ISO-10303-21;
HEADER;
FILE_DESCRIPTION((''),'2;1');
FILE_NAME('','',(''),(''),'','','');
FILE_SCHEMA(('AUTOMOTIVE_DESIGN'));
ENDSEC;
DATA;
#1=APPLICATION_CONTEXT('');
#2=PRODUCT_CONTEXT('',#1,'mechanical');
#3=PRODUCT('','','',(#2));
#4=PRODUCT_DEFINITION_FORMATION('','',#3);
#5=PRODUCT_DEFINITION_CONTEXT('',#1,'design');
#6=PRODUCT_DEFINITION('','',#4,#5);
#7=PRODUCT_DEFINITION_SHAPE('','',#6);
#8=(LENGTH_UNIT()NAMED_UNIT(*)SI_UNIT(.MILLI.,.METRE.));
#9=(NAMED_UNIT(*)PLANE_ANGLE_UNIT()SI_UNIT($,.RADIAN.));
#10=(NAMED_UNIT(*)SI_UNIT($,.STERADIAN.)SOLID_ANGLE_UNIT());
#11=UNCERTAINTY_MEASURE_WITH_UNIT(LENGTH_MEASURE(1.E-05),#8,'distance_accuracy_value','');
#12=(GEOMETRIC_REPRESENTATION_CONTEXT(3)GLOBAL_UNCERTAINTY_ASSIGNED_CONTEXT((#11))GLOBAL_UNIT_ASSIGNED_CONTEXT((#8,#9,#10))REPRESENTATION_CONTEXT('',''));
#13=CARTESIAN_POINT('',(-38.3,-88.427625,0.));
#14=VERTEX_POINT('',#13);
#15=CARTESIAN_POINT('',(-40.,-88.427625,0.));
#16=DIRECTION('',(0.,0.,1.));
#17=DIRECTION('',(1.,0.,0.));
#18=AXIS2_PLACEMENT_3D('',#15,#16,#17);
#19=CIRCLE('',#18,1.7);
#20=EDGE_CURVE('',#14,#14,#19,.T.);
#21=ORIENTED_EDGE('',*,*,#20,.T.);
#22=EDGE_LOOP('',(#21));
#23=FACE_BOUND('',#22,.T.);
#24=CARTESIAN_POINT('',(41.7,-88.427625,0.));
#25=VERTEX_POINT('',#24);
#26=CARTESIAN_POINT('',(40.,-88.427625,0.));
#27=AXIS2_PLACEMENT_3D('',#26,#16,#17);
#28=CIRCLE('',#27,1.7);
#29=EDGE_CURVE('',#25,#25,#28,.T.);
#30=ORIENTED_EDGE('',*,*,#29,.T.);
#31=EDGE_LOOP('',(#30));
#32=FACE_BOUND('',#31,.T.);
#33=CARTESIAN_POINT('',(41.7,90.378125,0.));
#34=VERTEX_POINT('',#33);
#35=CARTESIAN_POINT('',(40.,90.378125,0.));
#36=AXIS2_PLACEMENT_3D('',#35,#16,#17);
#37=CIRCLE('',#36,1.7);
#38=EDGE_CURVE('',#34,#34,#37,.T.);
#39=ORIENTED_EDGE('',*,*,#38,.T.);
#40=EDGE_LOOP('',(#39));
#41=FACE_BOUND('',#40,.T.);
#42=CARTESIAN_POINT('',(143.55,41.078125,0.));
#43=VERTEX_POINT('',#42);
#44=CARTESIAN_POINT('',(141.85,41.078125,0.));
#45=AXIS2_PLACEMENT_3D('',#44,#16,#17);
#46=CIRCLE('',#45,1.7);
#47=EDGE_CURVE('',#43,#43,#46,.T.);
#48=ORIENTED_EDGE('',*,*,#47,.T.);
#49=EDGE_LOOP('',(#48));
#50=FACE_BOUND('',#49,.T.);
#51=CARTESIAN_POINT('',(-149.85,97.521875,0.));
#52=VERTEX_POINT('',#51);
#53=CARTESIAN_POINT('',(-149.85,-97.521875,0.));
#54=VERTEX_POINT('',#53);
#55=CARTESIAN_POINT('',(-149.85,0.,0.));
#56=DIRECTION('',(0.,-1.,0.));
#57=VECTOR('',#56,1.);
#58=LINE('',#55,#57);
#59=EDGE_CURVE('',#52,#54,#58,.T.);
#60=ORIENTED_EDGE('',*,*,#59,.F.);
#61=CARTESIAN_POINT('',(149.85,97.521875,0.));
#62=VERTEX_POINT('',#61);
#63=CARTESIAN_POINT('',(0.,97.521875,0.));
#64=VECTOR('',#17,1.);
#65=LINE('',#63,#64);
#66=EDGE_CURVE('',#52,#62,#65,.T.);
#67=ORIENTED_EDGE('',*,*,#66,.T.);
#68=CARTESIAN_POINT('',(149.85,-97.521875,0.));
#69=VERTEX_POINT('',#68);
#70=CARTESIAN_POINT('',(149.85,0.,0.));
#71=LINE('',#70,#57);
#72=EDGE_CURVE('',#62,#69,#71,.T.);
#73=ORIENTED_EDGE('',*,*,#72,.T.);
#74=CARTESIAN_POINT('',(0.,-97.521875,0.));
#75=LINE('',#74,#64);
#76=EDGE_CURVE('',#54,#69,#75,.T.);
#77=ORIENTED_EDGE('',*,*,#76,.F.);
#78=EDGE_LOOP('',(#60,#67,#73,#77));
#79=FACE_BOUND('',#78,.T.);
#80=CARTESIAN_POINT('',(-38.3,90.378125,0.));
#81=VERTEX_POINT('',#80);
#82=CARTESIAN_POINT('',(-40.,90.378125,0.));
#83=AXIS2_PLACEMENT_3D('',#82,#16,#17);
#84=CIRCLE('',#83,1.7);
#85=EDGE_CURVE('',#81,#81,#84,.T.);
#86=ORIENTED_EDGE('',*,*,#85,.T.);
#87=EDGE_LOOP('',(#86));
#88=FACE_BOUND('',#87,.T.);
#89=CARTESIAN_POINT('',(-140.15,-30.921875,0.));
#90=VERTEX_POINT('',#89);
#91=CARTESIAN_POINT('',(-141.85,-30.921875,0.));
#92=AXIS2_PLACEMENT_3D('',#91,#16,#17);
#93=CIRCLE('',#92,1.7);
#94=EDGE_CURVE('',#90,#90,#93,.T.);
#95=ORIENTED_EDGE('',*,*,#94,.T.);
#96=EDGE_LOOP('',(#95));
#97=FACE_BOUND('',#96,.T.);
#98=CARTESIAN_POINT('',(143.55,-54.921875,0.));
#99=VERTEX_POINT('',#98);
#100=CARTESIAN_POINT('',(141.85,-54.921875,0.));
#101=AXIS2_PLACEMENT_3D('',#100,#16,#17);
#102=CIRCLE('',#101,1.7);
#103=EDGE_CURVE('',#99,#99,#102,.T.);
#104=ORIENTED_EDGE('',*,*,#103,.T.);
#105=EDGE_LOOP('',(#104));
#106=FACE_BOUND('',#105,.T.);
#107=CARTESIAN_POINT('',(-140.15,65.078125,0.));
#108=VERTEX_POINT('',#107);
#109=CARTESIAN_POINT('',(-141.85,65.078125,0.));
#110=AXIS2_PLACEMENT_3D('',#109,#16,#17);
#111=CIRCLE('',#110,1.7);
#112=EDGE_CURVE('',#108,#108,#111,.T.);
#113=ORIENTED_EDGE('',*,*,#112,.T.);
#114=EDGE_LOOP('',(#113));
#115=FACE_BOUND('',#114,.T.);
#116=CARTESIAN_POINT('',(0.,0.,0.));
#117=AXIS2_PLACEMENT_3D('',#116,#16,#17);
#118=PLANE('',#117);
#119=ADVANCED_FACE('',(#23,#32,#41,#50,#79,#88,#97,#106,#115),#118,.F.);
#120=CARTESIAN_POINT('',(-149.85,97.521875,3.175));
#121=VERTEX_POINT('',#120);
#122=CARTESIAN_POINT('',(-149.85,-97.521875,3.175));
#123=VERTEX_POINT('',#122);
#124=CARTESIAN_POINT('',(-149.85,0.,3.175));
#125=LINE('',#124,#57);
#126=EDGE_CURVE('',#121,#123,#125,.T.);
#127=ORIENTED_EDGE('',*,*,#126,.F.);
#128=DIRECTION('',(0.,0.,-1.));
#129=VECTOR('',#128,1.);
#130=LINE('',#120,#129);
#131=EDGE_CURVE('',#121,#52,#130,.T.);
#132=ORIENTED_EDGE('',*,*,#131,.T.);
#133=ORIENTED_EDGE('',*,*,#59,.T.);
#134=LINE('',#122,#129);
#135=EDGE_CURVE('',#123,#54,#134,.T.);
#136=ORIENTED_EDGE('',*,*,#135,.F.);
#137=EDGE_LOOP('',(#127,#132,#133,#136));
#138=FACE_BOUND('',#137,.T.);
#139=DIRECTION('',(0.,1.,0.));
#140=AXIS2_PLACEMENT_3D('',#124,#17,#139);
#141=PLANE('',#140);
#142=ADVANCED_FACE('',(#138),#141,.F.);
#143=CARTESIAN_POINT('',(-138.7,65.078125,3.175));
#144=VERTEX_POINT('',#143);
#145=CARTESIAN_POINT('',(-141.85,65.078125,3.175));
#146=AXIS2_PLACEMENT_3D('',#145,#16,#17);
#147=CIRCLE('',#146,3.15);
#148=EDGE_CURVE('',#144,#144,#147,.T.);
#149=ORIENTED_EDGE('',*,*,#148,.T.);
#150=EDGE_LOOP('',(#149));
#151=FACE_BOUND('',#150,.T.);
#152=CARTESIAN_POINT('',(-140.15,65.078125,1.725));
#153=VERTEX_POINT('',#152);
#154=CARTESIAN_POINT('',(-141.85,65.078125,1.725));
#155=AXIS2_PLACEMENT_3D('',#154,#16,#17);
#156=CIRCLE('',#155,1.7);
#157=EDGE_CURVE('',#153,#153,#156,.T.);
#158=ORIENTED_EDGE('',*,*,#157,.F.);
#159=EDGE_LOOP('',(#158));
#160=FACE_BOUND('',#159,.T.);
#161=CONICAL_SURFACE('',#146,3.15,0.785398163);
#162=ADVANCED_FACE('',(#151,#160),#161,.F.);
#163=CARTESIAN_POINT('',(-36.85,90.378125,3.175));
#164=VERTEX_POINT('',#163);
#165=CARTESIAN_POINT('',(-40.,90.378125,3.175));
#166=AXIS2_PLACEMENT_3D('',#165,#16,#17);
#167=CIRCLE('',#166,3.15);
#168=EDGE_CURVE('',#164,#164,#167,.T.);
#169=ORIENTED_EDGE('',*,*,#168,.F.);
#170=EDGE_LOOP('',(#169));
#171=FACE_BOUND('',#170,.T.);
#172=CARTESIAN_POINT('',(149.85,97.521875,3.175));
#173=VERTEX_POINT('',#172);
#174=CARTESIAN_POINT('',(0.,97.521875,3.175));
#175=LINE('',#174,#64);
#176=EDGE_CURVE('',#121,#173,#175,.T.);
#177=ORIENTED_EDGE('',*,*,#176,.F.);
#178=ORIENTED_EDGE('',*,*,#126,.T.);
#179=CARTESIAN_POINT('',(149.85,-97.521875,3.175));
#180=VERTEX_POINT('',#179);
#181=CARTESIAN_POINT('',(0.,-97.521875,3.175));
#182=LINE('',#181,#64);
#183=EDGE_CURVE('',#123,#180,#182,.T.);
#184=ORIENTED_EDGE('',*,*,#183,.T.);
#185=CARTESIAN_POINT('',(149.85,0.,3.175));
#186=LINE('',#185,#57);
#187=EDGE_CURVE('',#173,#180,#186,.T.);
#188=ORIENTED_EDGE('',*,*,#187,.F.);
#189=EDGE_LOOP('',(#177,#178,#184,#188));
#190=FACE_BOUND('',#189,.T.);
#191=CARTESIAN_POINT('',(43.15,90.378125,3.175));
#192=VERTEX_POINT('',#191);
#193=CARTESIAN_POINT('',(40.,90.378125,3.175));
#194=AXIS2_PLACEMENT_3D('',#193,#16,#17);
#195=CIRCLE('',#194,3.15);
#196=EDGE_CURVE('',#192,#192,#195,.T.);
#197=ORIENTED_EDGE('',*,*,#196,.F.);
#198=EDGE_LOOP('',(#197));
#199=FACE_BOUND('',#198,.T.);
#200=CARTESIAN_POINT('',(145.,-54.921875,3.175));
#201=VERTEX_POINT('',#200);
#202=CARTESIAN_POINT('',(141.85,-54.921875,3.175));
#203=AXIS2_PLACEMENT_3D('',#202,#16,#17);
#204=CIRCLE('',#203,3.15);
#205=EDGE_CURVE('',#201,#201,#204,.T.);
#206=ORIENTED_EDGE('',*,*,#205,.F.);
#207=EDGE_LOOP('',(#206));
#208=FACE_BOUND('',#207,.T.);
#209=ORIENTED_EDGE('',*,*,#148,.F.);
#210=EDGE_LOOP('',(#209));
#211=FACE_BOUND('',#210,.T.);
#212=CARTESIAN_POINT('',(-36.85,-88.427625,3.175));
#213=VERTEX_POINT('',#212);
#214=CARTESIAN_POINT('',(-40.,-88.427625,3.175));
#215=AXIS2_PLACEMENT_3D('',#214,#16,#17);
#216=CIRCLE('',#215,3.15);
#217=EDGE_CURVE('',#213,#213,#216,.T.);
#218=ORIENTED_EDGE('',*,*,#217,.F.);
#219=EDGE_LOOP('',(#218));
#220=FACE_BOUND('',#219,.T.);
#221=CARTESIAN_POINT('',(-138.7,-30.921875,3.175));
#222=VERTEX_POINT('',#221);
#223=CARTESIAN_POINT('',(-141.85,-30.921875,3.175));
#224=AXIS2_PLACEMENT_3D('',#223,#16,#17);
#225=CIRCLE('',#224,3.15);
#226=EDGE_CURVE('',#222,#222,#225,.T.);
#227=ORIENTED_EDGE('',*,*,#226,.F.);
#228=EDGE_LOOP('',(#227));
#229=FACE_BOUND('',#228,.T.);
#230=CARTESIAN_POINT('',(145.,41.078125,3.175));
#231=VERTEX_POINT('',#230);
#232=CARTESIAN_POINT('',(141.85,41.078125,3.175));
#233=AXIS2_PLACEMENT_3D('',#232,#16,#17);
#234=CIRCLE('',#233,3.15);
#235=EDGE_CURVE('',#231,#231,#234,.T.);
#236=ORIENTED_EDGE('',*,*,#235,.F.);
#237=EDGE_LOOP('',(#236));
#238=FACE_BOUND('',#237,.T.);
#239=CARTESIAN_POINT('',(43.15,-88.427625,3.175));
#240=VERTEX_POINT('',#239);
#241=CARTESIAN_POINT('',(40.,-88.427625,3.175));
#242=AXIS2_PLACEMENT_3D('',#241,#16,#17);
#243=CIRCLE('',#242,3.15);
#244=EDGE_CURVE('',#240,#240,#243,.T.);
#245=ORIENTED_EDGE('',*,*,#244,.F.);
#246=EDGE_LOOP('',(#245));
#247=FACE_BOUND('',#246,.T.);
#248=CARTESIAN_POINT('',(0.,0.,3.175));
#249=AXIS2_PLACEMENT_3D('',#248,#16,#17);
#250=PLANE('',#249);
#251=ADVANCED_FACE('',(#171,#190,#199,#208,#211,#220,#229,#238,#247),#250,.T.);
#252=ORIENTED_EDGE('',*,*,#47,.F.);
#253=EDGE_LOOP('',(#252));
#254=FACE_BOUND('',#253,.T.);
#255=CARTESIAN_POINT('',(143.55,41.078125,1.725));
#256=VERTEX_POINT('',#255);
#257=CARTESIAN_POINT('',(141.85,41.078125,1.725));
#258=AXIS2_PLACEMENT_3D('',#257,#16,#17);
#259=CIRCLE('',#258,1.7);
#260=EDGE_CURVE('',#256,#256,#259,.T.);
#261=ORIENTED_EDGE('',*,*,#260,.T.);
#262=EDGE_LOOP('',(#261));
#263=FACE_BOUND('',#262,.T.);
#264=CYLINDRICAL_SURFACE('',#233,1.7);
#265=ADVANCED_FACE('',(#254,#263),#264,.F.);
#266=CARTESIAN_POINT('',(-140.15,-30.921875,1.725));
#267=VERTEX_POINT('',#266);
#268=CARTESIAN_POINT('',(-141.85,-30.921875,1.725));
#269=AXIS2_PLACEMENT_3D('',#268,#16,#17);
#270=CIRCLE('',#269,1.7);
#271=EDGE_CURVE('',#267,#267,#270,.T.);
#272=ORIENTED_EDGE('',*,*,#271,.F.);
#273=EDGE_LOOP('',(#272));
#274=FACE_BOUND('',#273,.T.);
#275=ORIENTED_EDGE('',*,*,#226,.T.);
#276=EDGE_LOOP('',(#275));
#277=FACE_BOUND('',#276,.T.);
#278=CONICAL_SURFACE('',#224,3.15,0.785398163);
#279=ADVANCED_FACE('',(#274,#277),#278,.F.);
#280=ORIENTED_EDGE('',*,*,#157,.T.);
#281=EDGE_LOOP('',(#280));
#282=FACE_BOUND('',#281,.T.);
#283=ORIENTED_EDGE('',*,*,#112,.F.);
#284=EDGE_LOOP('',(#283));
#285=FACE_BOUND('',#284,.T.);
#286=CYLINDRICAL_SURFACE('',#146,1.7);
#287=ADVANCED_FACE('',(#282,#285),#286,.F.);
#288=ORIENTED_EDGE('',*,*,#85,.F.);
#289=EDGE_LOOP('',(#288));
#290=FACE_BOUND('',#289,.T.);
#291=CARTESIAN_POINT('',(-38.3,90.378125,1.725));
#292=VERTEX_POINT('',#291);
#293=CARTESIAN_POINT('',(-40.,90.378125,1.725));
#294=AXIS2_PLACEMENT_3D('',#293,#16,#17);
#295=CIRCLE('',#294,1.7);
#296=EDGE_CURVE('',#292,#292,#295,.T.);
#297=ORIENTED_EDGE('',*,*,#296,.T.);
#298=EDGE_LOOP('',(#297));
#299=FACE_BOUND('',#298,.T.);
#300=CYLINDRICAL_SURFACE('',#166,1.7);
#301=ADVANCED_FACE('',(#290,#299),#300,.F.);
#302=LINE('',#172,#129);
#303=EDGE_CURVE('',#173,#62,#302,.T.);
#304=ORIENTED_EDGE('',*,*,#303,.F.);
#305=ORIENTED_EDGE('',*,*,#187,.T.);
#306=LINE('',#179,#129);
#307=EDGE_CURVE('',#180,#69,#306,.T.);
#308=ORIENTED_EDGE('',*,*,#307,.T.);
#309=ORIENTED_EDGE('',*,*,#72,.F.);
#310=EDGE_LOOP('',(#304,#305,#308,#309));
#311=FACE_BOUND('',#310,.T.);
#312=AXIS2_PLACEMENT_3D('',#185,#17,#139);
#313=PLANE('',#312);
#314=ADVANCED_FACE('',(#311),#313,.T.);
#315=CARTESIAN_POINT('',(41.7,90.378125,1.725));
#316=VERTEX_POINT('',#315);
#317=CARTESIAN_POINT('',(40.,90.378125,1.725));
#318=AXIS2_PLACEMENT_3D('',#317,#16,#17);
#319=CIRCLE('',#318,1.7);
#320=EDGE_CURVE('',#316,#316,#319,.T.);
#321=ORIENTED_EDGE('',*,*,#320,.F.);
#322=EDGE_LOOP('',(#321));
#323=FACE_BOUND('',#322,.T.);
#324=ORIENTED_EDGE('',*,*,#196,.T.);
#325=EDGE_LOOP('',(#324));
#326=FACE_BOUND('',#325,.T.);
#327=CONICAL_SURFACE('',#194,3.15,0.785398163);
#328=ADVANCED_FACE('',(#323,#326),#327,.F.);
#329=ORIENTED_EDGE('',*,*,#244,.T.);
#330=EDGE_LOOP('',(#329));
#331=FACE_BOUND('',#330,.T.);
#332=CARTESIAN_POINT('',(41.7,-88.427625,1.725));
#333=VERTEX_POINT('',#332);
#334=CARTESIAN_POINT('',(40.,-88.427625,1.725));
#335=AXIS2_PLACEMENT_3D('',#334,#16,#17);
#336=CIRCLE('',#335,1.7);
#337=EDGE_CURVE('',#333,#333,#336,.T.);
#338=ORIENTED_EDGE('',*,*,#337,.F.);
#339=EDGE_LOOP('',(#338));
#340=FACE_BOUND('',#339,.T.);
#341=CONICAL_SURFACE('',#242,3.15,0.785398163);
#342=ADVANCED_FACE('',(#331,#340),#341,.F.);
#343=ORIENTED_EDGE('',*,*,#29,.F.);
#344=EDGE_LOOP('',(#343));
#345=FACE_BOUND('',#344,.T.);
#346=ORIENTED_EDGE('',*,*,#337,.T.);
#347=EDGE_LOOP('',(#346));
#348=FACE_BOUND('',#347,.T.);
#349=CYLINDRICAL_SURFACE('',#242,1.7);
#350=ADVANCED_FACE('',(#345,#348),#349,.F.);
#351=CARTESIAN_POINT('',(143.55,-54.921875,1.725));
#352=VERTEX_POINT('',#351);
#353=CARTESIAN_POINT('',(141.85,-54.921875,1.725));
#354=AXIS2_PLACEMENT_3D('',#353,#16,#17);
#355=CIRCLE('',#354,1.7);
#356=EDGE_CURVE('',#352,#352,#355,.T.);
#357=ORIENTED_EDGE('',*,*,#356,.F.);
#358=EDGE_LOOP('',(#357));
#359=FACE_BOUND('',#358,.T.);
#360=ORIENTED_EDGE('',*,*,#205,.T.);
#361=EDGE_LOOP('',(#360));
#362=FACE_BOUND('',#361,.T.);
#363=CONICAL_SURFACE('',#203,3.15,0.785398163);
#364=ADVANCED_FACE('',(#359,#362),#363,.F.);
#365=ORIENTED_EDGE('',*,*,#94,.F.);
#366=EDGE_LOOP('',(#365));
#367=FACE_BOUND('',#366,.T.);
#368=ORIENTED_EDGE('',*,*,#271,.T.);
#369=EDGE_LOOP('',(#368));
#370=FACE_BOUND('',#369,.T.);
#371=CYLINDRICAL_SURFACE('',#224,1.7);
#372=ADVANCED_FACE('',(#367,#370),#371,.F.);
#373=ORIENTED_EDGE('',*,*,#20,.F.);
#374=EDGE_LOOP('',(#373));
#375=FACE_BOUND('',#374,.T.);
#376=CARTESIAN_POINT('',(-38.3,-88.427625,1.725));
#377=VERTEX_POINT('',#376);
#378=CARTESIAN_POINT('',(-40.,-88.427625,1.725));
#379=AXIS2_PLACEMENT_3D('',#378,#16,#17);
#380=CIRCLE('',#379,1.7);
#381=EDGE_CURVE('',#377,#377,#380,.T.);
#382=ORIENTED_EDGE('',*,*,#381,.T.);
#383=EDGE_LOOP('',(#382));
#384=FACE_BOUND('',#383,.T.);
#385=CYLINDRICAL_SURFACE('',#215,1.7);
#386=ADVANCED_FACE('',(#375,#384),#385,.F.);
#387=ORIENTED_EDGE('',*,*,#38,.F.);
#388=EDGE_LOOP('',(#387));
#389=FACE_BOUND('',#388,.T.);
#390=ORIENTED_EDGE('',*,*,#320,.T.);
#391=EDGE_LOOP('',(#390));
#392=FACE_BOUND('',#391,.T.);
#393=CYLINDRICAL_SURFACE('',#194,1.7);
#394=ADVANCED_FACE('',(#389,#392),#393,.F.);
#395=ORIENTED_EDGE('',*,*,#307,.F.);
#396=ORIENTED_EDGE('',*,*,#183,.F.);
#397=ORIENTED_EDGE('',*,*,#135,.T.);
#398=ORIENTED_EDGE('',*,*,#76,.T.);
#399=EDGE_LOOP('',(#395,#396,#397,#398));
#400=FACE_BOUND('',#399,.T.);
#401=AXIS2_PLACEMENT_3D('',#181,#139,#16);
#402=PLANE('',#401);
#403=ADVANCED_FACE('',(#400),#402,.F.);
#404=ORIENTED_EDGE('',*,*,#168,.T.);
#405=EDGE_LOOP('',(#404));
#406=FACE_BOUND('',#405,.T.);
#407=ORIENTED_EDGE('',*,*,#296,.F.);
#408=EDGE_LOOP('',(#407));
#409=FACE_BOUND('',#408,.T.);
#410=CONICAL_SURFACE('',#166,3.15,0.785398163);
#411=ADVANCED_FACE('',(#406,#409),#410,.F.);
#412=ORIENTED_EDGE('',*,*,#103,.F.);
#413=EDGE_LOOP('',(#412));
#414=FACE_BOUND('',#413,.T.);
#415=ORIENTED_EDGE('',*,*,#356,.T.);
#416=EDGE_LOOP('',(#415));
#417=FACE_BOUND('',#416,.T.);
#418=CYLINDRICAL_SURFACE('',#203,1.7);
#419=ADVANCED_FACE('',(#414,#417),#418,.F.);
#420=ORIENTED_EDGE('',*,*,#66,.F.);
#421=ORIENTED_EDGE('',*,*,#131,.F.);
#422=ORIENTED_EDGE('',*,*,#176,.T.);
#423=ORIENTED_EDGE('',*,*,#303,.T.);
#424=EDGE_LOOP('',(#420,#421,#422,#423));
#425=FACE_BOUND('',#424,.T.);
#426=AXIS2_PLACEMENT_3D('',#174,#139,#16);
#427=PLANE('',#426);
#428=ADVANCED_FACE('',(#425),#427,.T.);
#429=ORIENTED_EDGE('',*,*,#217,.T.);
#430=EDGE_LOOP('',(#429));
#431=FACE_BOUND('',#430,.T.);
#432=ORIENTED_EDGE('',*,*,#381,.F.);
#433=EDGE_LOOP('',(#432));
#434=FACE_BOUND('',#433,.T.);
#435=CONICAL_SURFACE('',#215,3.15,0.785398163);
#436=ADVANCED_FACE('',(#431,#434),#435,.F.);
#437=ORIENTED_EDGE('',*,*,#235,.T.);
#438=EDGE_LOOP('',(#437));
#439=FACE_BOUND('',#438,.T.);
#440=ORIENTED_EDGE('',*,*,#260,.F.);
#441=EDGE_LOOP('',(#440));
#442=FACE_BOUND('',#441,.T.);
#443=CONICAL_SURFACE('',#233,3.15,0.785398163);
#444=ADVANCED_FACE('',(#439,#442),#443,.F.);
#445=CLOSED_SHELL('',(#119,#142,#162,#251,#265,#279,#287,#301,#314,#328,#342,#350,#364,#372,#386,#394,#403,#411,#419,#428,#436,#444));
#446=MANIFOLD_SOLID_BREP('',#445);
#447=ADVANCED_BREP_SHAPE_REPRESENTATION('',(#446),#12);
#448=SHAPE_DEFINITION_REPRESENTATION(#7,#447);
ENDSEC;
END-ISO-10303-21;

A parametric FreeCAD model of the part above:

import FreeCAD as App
import Part
import Sketcher

V = App.Vector


def add_polygon(sketch, points):
    """Adds a closed chain of lines whose ends are joined by coincident constraints."""
    first, n = sketch.GeometryCount, len(points)
    for a, b in zip(points, points[1:] + points[:1]):
        sketch.addGeometry(Part.LineSegment(App.Vector(*a, 0), App.Vector(*b, 0)), False)
    for i in range(n):
        sketch.addConstraint(Sketcher.Constraint("Coincident", first + i, 2, first + (i + 1) % n, 1))

doc = App.newDocument("Part")
body = doc.addObject("PartDesign::Body", "Body")

# Sketch on XY plane
sketch1 = doc.addObject("Sketcher::SketchObject", "Sketch")
body.addObject(sketch1)
sketch1.AttachmentSupport = (doc.XY_Plane, [""])
sketch1.MapMode = "FlatFace"
add_polygon(sketch1, [(-149.85, -97.521875), (149.85, -97.521875), (149.85, 97.521875), (-149.85, 97.521875)])  # lines 0-3
sketch1.addConstraint(Sketcher.Constraint("Horizontal", 0))
sketch1.addConstraint(Sketcher.Constraint("Vertical", 1))
sketch1.addConstraint(Sketcher.Constraint("Horizontal", 2))
sketch1.addConstraint(Sketcher.Constraint("Vertical", 3))
sketch1.addConstraint(Sketcher.Constraint("Symmetric", 0, 2, 2, 2, -1, 1))
sketch1.addConstraint(Sketcher.Constraint("DistanceX", 0, 1, 0, 2, 299.7))
sketch1.addConstraint(Sketcher.Constraint("DistanceY", 1, 1, 1, 2, 195.04375))
pad1 = doc.addObject("PartDesign::Pad", "Pad")
body.addObject(pad1)
pad1.Profile = sketch1
pad1.Length = 3.175

# Sketch on XY plane
sketch2 = doc.addObject("Sketcher::SketchObject", "Sketch001")
body.addObject(sketch2)
sketch2.AttachmentSupport = (doc.XY_Plane, [""])
sketch2.MapMode = "FlatFace"
sketch2.AttachmentOffset = App.Placement(V(0, 0, 3.175), App.Rotation())
sketch2.addGeometry(Part.Circle(V(-40, 90.378125, 0), V(0, 0, 1), 1.7), False)
sketch2.addGeometry(Part.Circle(V(40, 90.378125, 0), V(0, 0, 1), 1.7), False)
sketch2.addGeometry(Part.Circle(V(141.85, 41.078125, 0), V(0, 0, 1), 1.7), False)
sketch2.addGeometry(Part.Circle(V(141.85, -54.921875, 0), V(0, 0, 1), 1.7), False)
sketch2.addGeometry(Part.Circle(V(40, -88.427625, 0), V(0, 0, 1), 1.7), False)
sketch2.addGeometry(Part.Circle(V(-40, -88.427625, 0), V(0, 0, 1), 1.7), False)
sketch2.addGeometry(Part.Circle(V(-141.85, -30.921875, 0), V(0, 0, 1), 1.7), False)
sketch2.addGeometry(Part.Circle(V(-141.85, 65.078125, 0), V(0, 0, 1), 1.7), False)
sketch2.addConstraint(Sketcher.Constraint("Equal", 0, 1))
sketch2.addConstraint(Sketcher.Constraint("Equal", 1, 2))
sketch2.addConstraint(Sketcher.Constraint("Equal", 2, 3))
sketch2.addConstraint(Sketcher.Constraint("Equal", 3, 4))
sketch2.addConstraint(Sketcher.Constraint("Equal", 4, 5))
sketch2.addConstraint(Sketcher.Constraint("Equal", 5, 6))
sketch2.addConstraint(Sketcher.Constraint("Equal", 6, 7))
sketch2.addConstraint(Sketcher.Constraint("Symmetric", 0, 3, 1, 3, -2))
sketch2.addConstraint(Sketcher.Constraint("Symmetric", 4, 3, 5, 3, -2))
sketch2.addConstraint(Sketcher.Constraint("Vertical", 2, 3, 3, 3))
sketch2.addConstraint(Sketcher.Constraint("Vertical", 1, 3, 4, 3))
sketch2.addConstraint(Sketcher.Constraint("Vertical", 6, 3, 7, 3))
sketch2.addConstraint(Sketcher.Constraint("Diameter", 0, 3.4))
sketch2.addConstraint(Sketcher.Constraint("DistanceX", 0, 3, -1, 1, 40.0))
sketch2.addConstraint(Sketcher.Constraint("DistanceY", 3, 3, 2, 3, 96.0))
sketch2.addConstraint(Sketcher.Constraint("DistanceY", 3, 3, 6, 3, 24.0))
sketch2.addConstraint(Sketcher.Constraint("DistanceY", 6, 3, 7, 3, 96.0))
sketch2.addConstraint(Sketcher.Constraint("DistanceY", 2, 3, 1, 3, 49.3))
sketch2.addConstraint(Sketcher.Constraint("DistanceX", 6, 3, 3, 3, 283.7))
sketch2.addConstraint(Sketcher.Constraint("DistanceX", -1, 1, 2, 3, 141.85))
sketch2.addConstraint(Sketcher.Constraint("DistanceY", 4, 3, 3, 3, 33.50575))
sketch2.addConstraint(Sketcher.Constraint("DistanceY", -1, 1, 0, 3, 90.378125))
doc.recompute()
hole = doc.addObject("PartDesign::Hole", "Hole")
body.addObject(hole)
hole.Profile = sketch2
hole.ThreadType = "None"
hole.Diameter = 3.4
hole.DepthType = "ThroughAll"
hole.HoleCutType = "Countersink"
hole.HoleCutDiameter = 6.3
hole.HoleCutCountersinkAngle = 90

doc.recompute()
